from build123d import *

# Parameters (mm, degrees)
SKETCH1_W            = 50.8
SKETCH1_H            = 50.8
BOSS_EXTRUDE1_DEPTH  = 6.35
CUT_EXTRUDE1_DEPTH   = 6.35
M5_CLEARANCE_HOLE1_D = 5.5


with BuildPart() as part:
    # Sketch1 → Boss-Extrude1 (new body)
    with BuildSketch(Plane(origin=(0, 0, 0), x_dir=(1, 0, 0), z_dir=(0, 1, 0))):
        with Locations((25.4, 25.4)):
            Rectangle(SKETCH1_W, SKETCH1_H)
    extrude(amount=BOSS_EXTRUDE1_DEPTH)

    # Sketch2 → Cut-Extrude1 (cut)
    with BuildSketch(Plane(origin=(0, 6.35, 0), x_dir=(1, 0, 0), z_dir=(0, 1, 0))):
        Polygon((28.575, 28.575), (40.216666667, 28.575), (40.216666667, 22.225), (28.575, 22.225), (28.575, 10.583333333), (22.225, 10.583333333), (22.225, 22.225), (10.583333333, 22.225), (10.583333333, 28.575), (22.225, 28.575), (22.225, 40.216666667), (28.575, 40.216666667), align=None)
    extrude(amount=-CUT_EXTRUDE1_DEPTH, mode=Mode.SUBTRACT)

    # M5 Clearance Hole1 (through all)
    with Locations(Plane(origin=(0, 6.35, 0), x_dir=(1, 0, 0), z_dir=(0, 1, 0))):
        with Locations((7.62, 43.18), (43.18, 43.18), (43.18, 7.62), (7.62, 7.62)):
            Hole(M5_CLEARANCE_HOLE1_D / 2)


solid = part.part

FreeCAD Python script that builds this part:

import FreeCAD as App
import Part
import Sketcher
from FreeCAD import Vector
Q = App.Units.Quantity


def add_polygon(sketch, points):
    """Adds a closed chain of lines whose ends are joined by coincident constraints."""
    first, n = sketch.GeometryCount, len(points)
    for a, b in zip(points, points[1:] + points[:1]):
        sketch.addGeometry(Part.LineSegment(App.Vector(*a, 0), App.Vector(*b, 0)), False)
    for i in range(n):
        sketch.addConstraint(Sketcher.Constraint("Coincident", first + i, 2, first + (i + 1) % n, 1))

doc = App.newDocument("Part")
body = doc.addObject("PartDesign::Body", "Body")

sketch1 = body.newObject("Sketcher::SketchObject", "Sketch")
sketch1.AttachmentSupport = (doc.getObject("XZ_Plane"), [""])
sketch1.MapMode = "FlatFace"
add_polygon(sketch1, [(0, -51), (0, 0), (51, 0), (51, -51)])
sketch1.addConstraint(Sketcher.Constraint("Vertical", 0))
sketch1.addConstraint(Sketcher.Constraint("Horizontal", 1))
sketch1.addConstraint(Sketcher.Constraint("Vertical", 2))
sketch1.addConstraint(Sketcher.Constraint("Horizontal", 3))
sketch1.addConstraint(Sketcher.Constraint("Coincident", 0, 2, -1, 1))
sketch1.addConstraint(Sketcher.Constraint("Equal", 3, 0))
sketch1.addConstraint(Sketcher.Constraint("DistanceX", 1, 1, 1, 2, Q("2 in")))
pad1 = body.newObject("PartDesign::Pad", "Pad")
pad1.Profile = sketch1
pad1.Length = Q("0.25 in")
pad1.Reversed = True

sketch2 = body.newObject("Sketcher::SketchObject", "Sketch001")
sketch2.AttachmentSupport = (doc.getObject("XZ_Plane"), [""])
sketch2.MapMode = "FlatFace"
sketch2.AttachmentOffset = App.Placement(Vector(0, 0, -0.25 * 25.4), App.Rotation())
add_polygon(sketch2, [(40, -29), (29, -29), (29, -40), (22, -40), (22, -29), (11, -29), (11, -22), (22, -22), (22, -11), (29, -11), (29, -22), (40, -22)])
sketch2.addConstraint(Sketcher.Constraint("Horizontal", 0))
sketch2.addConstraint(Sketcher.Constraint("Vertical", 1))
sketch2.addConstraint(Sketcher.Constraint("Horizontal", 2))
sketch2.addConstraint(Sketcher.Constraint("Vertical", 3))
sketch2.addConstraint(Sketcher.Constraint("Horizontal", 4))
sketch2.addConstraint(Sketcher.Constraint("Vertical", 5))
sketch2.addConstraint(Sketcher.Constraint("Horizontal", 6))
sketch2.addConstraint(Sketcher.Constraint("Vertical", 7))
sketch2.addConstraint(Sketcher.Constraint("Horizontal", 8))
sketch2.addConstraint(Sketcher.Constraint("Vertical", 9))
sketch2.addConstraint(Sketcher.Constraint("Horizontal", 10))
sketch2.addConstraint(Sketcher.Constraint("Vertical", 11))
sketch2.addConstraint(Sketcher.Constraint("Horizontal", 0, 2, 3, 2))
sketch2.addConstraint(Sketcher.Constraint("Horizontal", 6, 2, 9, 2))
sketch2.addConstraint(Sketcher.Constraint("Vertical", 3, 2, 6, 2))
sketch2.addConstraint(Sketcher.Constraint("Vertical", 1, 2, 8, 2))
sketch2.addConstraint(Sketcher.Constraint("Equal", 0, 4))
sketch2.addConstraint(Sketcher.Constraint("Equal", 10, 1))
sketch2.addConstraint(Sketcher.Constraint("Equal", 8, 5))
sketch2.addConstraint(Sketcher.Constraint("Equal", 3, 7))
sketch2.addConstraint(Sketcher.Constraint("DistanceX", 2, 2, 2, 1, Q("0.25 in")))
sketch2.addConstraint(Sketcher.Constraint("DistanceX", -1, 1, 0, 2, Q("1.125 in")))
sketch2.addConstraint(Sketcher.Constraint("DistanceY", 0, 2, -1, 1, Q("1.125 in")))
sketch2.addConstraint(Sketcher.Constraint("DistanceX", 0, 2, 0, 1, Q("11.641667 mm")))
pocket1 = body.newObject("PartDesign::Pocket", "Pocket")
pocket1.Profile = sketch2
pocket1.Length = Q("0.25 in")
pocket1.Reversed = True

sketch3 = body.newObject("Sketcher::SketchObject", "Sketch002")
sketch3.AttachmentSupport = (doc.getObject("XZ_Plane"), [""])
sketch3.MapMode = "FlatFace"
sketch3.AttachmentOffset = App.Placement(Vector(0, 0, -0.25 * 25.4), App.Rotation())
sketch3.addGeometry(Part.Circle(Vector(7.6, -43.2, 0), Vector(0, 0, 1), 2.8), False)
sketch3.addGeometry(Part.Circle(Vector(43.2, -43.2, 0), Vector(0, 0, 1), 2.8), False)
sketch3.addGeometry(Part.Circle(Vector(43.2, -7.6, 0), Vector(0, 0, 1), 2.8), False)
sketch3.addGeometry(Part.Circle(Vector(7.6, -7.6, 0), Vector(0, 0, 1), 2.8), False)
sketch3.addConstraint(Sketcher.Constraint("Equal", 0, 1))
sketch3.addConstraint(Sketcher.Constraint("Equal", 1, 2))
sketch3.addConstraint(Sketcher.Constraint("Equal", 2, 3))
sketch3.addConstraint(Sketcher.Constraint("Horizontal", 0, 3, 1, 3))
sketch3.addConstraint(Sketcher.Constraint("Horizontal", 2, 3, 3, 3))
sketch3.addConstraint(Sketcher.Constraint("Vertical", 1, 3, 2, 3))
sketch3.addConstraint(Sketcher.Constraint("Vertical", 0, 3, 3, 3))
sketch3.addConstraint(Sketcher.Constraint("DistanceX", -1, 1, 0, 3, Q("0.3 in")))
sketch3.addConstraint(Sketcher.Constraint("DistanceY", 0, 3, -1, 1, Q("1.7 in")))
sketch3.addConstraint(Sketcher.Constraint("DistanceX", -1, 1, 1, 3, Q("1.7 in")))
sketch3.addConstraint(Sketcher.Constraint("DistanceY", 2, 3, -1, 1, Q("0.3 in")))
sketch3.addConstraint(Sketcher.Constraint("Diameter", 0, Q("5.5 mm")))
doc.recompute()
hole = body.newObject("PartDesign::Hole", "Hole")
hole.Profile = sketch3
hole.ThreadType = "None"
hole.Diameter = 5.5
hole.DepthType = "ThroughAll"
hole.Reversed = True

doc.recompute()
